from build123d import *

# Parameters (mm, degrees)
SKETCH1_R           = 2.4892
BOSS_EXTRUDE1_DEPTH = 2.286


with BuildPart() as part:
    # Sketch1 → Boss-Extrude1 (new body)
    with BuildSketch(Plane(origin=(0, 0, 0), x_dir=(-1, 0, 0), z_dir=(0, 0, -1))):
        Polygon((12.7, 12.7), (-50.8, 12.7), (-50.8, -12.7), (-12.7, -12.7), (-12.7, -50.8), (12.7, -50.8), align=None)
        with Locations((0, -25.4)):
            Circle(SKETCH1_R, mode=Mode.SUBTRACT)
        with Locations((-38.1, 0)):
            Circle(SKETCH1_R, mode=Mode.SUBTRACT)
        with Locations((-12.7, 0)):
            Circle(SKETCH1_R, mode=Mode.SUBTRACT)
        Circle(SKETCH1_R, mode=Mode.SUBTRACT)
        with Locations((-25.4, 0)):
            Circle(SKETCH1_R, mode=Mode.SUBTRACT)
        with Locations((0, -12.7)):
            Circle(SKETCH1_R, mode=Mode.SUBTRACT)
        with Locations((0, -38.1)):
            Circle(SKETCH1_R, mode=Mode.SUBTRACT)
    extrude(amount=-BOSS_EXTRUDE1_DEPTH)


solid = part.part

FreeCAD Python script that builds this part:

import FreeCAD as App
import Part
import Sketcher
from FreeCAD import Vector
Q = App.Units.Quantity


def add_polygon(sketch, points):
    """Adds a closed chain of lines whose ends are joined by coincident constraints."""
    first, n = sketch.GeometryCount, len(points)
    for a, b in zip(points, points[1:] + points[:1]):
        sketch.addGeometry(Part.LineSegment(App.Vector(*a, 0), App.Vector(*b, 0)), False)
    for i in range(n):
        sketch.addConstraint(Sketcher.Constraint("Coincident", first + i, 2, first + (i + 1) % n, 1))

doc = App.newDocument("Part")
params = doc.addObject("Spreadsheet::Sheet", "Params")
for row, (alias, value) in enumerate([
    ("sketch1_width", "1 in"),
    ("sketch1_diameter", "0.196 in"),
    ("sketch1_width2", "2.5 in"),
    ("pad1_length", "0.09 in"),
], start=1):
    params.set(f"A{row}", alias)
    params.set(f"B{row}", "=" + value)
    params.setAlias(f"B{row}", alias)

body = doc.addObject("PartDesign::Body", "Body")

sketch1 = body.newObject("Sketcher::SketchObject", "Sketch")
sketch1.AttachmentSupport = (doc.getObject("XY_Plane"), [""])
sketch1.MapMode = "FlatFace"
add_polygon(sketch1, [(-12.7, 12.7), (50.8, 12.7), (50.8, -12.7), (12.7, -12.7), (12.7, -50.8), (-12.7, -50.8)])
sketch1.addGeometry(Part.Circle(Vector(0, -38.1, 0), Vector(0, 0, 1), 2.4892), False)
sketch1.addGeometry(Part.Circle(Vector(0, -25.4, 0), Vector(0, 0, 1), 2.4892), False)
sketch1.addGeometry(Part.Circle(Vector(38.1, 0, 0), Vector(0, 0, 1), 2.4892), False)
sketch1.addGeometry(Part.Circle(Vector(25.4, 0, 0), Vector(0, 0, 1), 2.4892), False)
sketch1.addGeometry(Part.Circle(Vector(0, -12.7, 0), Vector(0, 0, 1), 2.4892), False)
sketch1.addGeometry(Part.Circle(Vector(12.7, 0, 0), Vector(0, 0, 1), 2.4892), False)
sketch1.addGeometry(Part.Circle(Vector(0, 0, 0), Vector(0, 0, 1), 2.4892), False)
sketch1.addConstraint([
    Sketcher.Constraint("Horizontal", 0),
    Sketcher.Constraint("Vertical", 1),
    Sketcher.Constraint("Horizontal", 2),
    Sketcher.Constraint("Vertical", 3),
    Sketcher.Constraint("Horizontal", 4),
    Sketcher.Constraint("Vertical", 5),
    Sketcher.Constraint("Coincident", 12, 3, -1, 1),
    Sketcher.Constraint("Equal", 6, 7),
    Sketcher.Constraint("Equal", 7, 8),
    Sketcher.Constraint("Equal", 8, 9),
    Sketcher.Constraint("Equal", 9, 10),
    Sketcher.Constraint("Equal", 10, 11),
    Sketcher.Constraint("Equal", 11, 12),
    Sketcher.Constraint("Symmetric", 2, 2, 5, 2, -1, 1),
    Sketcher.Constraint("PointOnObject", 6, 3, -2),
    Sketcher.Constraint("PointOnObject", 7, 3, -2),
    Sketcher.Constraint("PointOnObject", 8, 3, -1),
    Sketcher.Constraint("PointOnObject", 9, 3, -1),
    Sketcher.Constraint("PointOnObject", 10, 3, -2),
    Sketcher.Constraint("PointOnObject", 11, 3, -1),
    Sketcher.Constraint("Horizontal", 10, 3, 1, 2),
    Sketcher.Constraint("Vertical", 11, 3, 2, 2),
    Sketcher.Constraint("Equal", 4, 1),
    Sketcher.Constraint("Equal", 2, 3),
    Sketcher.Constraint("DistanceX", 4, 2, 4, 1, Q("1 in")),
    Sketcher.Constraint("Diameter", 6, Q("0.196 in")),
    Sketcher.Constraint("DistanceX", 0, 1, 0, 2, Q("2.5 in")),
    Sketcher.Constraint("DistanceY", 7, 3, -1, 1, Q("1 in")),
    Sketcher.Constraint("DistanceX", -1, 1, 9, 3, Q("1 in")),
    Sketcher.Constraint("DistanceY", 6, 3, 10, 3, Q("1 in")),
    Sketcher.Constraint("DistanceX", 11, 3, 8, 3, Q("1 in")),
])
sketch1.setExpression("Constraints[30]", "Params.sketch1_width")
sketch1.setExpression("Constraints[31]", "Params.sketch1_diameter")
sketch1.setExpression("Constraints[32]", "Params.sketch1_width2")
pad1 = body.newObject("PartDesign::Pad", "Pad")
pad1.Profile = sketch1
pad1.setExpression("Length", "Params.pad1_length")

doc.recompute()
